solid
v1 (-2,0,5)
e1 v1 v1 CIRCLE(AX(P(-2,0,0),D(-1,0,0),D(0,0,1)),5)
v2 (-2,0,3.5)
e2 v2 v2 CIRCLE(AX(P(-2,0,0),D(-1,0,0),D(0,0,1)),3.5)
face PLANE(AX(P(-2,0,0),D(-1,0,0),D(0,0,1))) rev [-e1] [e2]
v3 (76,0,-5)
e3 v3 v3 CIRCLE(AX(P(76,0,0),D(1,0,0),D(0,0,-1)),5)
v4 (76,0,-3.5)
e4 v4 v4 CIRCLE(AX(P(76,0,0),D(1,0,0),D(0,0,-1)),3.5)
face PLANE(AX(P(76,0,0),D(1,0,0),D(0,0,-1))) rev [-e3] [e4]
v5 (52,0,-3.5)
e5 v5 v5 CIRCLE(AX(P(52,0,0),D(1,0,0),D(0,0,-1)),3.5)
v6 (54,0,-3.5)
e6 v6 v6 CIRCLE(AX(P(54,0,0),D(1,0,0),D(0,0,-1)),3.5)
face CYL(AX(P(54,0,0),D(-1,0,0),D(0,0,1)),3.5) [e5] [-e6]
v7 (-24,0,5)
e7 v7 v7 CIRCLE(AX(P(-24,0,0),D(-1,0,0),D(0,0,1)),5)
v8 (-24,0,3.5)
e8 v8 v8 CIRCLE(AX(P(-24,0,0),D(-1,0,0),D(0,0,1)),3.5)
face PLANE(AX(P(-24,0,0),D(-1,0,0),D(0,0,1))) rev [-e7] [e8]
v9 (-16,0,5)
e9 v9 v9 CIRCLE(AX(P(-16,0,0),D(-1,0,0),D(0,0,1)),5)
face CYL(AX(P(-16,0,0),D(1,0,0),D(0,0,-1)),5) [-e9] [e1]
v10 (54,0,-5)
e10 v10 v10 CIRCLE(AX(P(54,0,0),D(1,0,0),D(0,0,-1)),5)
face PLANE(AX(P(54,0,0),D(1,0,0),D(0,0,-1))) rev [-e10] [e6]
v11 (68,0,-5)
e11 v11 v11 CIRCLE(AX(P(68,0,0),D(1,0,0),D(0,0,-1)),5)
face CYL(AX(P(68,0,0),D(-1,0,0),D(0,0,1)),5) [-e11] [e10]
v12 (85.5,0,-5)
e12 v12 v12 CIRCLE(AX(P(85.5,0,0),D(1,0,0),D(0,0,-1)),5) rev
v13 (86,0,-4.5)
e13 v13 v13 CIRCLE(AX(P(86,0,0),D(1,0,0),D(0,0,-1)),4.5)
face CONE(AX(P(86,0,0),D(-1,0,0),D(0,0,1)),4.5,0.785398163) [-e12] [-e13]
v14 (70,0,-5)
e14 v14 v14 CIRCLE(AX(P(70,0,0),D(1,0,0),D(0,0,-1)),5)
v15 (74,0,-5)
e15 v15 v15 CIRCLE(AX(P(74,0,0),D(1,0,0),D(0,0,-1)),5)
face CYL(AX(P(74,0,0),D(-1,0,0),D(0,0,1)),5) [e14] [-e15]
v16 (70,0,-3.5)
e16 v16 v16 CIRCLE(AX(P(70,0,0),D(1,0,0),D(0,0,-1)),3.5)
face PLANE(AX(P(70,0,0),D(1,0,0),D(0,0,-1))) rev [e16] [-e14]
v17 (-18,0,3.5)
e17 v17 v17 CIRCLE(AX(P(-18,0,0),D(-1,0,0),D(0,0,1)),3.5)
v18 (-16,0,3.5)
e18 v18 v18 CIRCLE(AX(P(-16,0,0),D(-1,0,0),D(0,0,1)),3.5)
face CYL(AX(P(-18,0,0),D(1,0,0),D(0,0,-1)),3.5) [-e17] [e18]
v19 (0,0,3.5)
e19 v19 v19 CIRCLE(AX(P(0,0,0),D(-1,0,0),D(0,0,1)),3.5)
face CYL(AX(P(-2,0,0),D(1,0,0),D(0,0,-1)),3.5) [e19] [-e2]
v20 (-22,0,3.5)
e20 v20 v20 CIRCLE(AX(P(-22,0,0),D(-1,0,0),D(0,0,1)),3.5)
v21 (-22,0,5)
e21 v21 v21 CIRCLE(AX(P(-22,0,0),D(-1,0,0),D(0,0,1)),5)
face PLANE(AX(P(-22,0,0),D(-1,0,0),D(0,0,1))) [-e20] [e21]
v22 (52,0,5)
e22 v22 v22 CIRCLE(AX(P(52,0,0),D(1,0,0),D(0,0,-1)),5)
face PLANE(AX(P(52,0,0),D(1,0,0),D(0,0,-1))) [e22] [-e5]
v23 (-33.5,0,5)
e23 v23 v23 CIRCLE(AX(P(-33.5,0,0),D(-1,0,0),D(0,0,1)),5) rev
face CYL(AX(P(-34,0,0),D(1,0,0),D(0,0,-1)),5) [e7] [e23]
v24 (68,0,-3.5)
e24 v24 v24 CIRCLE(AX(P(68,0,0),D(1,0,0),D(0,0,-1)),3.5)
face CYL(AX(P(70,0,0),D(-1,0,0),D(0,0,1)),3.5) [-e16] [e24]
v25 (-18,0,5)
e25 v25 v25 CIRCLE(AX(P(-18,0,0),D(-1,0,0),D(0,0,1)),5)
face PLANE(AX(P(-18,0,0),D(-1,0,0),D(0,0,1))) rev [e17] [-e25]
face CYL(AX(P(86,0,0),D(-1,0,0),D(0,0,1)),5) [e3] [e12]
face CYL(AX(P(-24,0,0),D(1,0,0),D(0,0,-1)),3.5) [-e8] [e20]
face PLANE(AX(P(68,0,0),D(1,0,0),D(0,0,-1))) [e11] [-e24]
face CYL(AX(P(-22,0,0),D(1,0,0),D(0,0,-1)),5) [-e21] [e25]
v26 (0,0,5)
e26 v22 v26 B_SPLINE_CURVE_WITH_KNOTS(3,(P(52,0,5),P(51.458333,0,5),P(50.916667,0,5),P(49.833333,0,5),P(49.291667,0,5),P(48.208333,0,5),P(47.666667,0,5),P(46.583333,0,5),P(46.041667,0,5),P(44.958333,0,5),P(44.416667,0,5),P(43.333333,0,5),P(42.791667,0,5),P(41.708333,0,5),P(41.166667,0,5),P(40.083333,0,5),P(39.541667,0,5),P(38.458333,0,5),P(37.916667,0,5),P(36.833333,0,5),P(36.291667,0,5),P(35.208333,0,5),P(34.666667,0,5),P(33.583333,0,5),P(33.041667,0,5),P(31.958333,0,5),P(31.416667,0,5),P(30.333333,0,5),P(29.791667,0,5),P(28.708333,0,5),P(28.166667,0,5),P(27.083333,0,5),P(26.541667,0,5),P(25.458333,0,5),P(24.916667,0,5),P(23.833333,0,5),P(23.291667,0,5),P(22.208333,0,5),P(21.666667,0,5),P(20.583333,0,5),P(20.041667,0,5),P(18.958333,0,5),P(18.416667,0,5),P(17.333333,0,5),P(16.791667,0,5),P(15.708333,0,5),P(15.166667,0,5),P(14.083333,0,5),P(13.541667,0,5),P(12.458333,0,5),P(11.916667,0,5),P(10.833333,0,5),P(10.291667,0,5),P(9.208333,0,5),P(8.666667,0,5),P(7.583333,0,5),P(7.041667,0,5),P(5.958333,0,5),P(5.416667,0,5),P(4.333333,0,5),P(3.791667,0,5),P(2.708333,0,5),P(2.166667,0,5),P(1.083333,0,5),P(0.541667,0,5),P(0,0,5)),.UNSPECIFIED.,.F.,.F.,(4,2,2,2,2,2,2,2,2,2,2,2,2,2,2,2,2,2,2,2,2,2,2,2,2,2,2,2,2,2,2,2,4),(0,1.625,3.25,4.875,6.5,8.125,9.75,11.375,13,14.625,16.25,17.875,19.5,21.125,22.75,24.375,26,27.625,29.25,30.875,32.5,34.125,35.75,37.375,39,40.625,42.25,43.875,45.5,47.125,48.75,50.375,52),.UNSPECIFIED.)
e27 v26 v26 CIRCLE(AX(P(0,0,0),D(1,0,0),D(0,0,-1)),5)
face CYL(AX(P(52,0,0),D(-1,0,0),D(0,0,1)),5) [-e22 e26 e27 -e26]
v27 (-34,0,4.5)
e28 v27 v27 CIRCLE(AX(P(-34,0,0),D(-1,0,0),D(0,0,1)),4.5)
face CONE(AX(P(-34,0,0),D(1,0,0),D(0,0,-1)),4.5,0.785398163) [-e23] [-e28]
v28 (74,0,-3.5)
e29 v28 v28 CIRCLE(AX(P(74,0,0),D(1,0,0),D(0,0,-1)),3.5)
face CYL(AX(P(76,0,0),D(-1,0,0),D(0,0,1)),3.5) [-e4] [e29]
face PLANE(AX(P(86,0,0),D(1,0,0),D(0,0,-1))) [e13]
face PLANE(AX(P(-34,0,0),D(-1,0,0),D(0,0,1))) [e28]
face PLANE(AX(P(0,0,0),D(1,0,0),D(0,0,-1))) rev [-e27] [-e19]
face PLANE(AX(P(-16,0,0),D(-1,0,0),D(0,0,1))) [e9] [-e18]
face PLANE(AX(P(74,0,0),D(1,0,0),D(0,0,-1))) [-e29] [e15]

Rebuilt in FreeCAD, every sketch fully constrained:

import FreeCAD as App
import Part
import Sketcher

V = App.Vector


def edges_at(feature, points):
    """Names of the edges that pass closest to the given points."""
    edges = feature.Shape.Edges
    near = lambda p: min(range(len(edges)), key=lambda i: edges[i].distToShape(Part.Vertex(*p))[0])
    return sorted({f"Edge{near(p) + 1}" for p in points})

doc = App.newDocument("Part")
params = doc.addObject("Spreadsheet::Sheet", "Params")
for row, (alias, value) in enumerate([
    ("sketch1_diameter", "10 mm"),
    ("pad1_length", "52 mm"),
    ("sketch2_diameter", "7 mm"),
    ("pad2_length", "2 mm"),
    ("sketch3_diameter", "10 mm"),
    ("pad3_length", "14 mm"),
    ("sketch4_diameter", "7 mm"),
    ("pad4_length", "2 mm"),
    ("sketch5_diameter", "10 mm"),
    ("pad5_length", "4 mm"),
    ("sketch6_diameter", "7 mm"),
    ("pad6_length", "2 mm"),
    ("sketch7_diameter", "10 mm"),
    ("pad7_length", "10 mm"),
    ("sketch8_diameter", "7 mm"),
    ("pad8_length", "2 mm"),
    ("sketch9_diameter", "10 mm"),
    ("pad9_length", "14 mm"),
    ("sketch10_diameter", "7 mm"),
    ("pad10_length", "2 mm"),
    ("sketch11_diameter", "10 mm"),
    ("pad11_length", "4 mm"),
    ("sketch12_diameter", "7 mm"),
    ("pad12_length", "2 mm"),
    ("sketch13_diameter", "10 mm"),
    ("pad13_length", "10 mm"),
    ("chamfer_size", "0.5 mm"),
], start=1):
    params.set(f"A{row}", alias)
    params.set(f"B{row}", "=" + value)
    params.setAlias(f"B{row}", alias)

body = doc.addObject("PartDesign::Body", "Body")

sketch1 = body.newObject("Sketcher::SketchObject", "Sketch")
sketch1.AttachmentSupport = (doc.getObject("YZ_Plane"), [""])
sketch1.MapMode = "FlatFace"
sketch1.addGeometry(Part.Circle(V(0, 0, 0), V(0, 0, 1), 5), False)
sketch1.addConstraint(Sketcher.Constraint("Coincident", 0, 3, -1, 1))
sketch1.addConstraint(Sketcher.Constraint("Diameter", 0, 10.0))
sketch1.setExpression("Constraints[1]", "Params.sketch1_diameter")
pad1 = body.newObject("PartDesign::Pad", "Pad")
pad1.Profile = sketch1
pad1.setExpression("Length", "Params.pad1_length")

sketch2 = body.newObject("Sketcher::SketchObject", "Sketch001")
sketch2.AttachmentSupport = (doc.getObject("YZ_Plane"), [""])
sketch2.MapMode = "FlatFace"
sketch2.AttachmentOffset = App.Placement(V(0, 0, 52), App.Rotation())
sketch2.addGeometry(Part.Circle(V(0, 0, 0), V(0, 0, 1), 3.5), False)
sketch2.addConstraint(Sketcher.Constraint("Coincident", 0, 3, -1, 1))
sketch2.addConstraint(Sketcher.Constraint("Diameter", 0, 7.0))
sketch2.setExpression("Constraints[1]", "Params.sketch2_diameter")
pad2 = body.newObject("PartDesign::Pad", "Pad001")
pad2.Profile = sketch2
pad2.setExpression("Length", "Params.pad2_length")

sketch3 = body.newObject("Sketcher::SketchObject", "Sketch002")
sketch3.AttachmentSupport = (doc.getObject("YZ_Plane"), [""])
sketch3.MapMode = "FlatFace"
sketch3.AttachmentOffset = App.Placement(V(0, 0, 54), App.Rotation())
sketch3.addGeometry(Part.Circle(V(0, 0, 0), V(0, 0, 1), 5), False)
sketch3.addConstraint(Sketcher.Constraint("Coincident", 0, 3, -1, 1))
sketch3.addConstraint(Sketcher.Constraint("Diameter", 0, 10.0))
sketch3.setExpression("Constraints[1]", "Params.sketch3_diameter")
pad3 = body.newObject("PartDesign::Pad", "Pad002")
pad3.Profile = sketch3
pad3.setExpression("Length", "Params.pad3_length")

sketch4 = body.newObject("Sketcher::SketchObject", "Sketch003")
sketch4.AttachmentSupport = (doc.getObject("YZ_Plane"), [""])
sketch4.MapMode = "FlatFace"
sketch4.AttachmentOffset = App.Placement(V(0, 0, 68), App.Rotation())
sketch4.addGeometry(Part.Circle(V(0, 0, 0), V(0, 0, 1), 3.5), False)
sketch4.addConstraint(Sketcher.Constraint("Coincident", 0, 3, -1, 1))
sketch4.addConstraint(Sketcher.Constraint("Diameter", 0, 7.0))
sketch4.setExpression("Constraints[1]", "Params.sketch4_diameter")
pad4 = body.newObject("PartDesign::Pad", "Pad003")
pad4.Profile = sketch4
pad4.setExpression("Length", "Params.pad4_length")

sketch5 = body.newObject("Sketcher::SketchObject", "Sketch004")
sketch5.AttachmentSupport = (doc.getObject("YZ_Plane"), [""])
sketch5.MapMode = "FlatFace"
sketch5.AttachmentOffset = App.Placement(V(0, 0, 70), App.Rotation())
sketch5.addGeometry(Part.Circle(V(0, 0, 0), V(0, 0, 1), 5), False)
sketch5.addConstraint(Sketcher.Constraint("Coincident", 0, 3, -1, 1))
sketch5.addConstraint(Sketcher.Constraint("Diameter", 0, 10.0))
sketch5.setExpression("Constraints[1]", "Params.sketch5_diameter")
pad5 = body.newObject("PartDesign::Pad", "Pad004")
pad5.Profile = sketch5
pad5.setExpression("Length", "Params.pad5_length")

sketch6 = body.newObject("Sketcher::SketchObject", "Sketch005")
sketch6.AttachmentSupport = (doc.getObject("YZ_Plane"), [""])
sketch6.MapMode = "FlatFace"
sketch6.AttachmentOffset = App.Placement(V(0, 0, 74), App.Rotation())
sketch6.addGeometry(Part.Circle(V(0, 0, 0), V(0, 0, 1), 3.5), False)
sketch6.addConstraint(Sketcher.Constraint("Coincident", 0, 3, -1, 1))
sketch6.addConstraint(Sketcher.Constraint("Diameter", 0, 7.0))
sketch6.setExpression("Constraints[1]", "Params.sketch6_diameter")
pad6 = body.newObject("PartDesign::Pad", "Pad005")
pad6.Profile = sketch6
pad6.setExpression("Length", "Params.pad6_length")

sketch7 = body.newObject("Sketcher::SketchObject", "Sketch006")
sketch7.AttachmentSupport = (doc.getObject("YZ_Plane"), [""])
sketch7.MapMode = "FlatFace"
sketch7.AttachmentOffset = App.Placement(V(0, 0, 76), App.Rotation())
sketch7.addGeometry(Part.Circle(V(0, 0, 0), V(0, 0, 1), 5), False)
sketch7.addConstraint(Sketcher.Constraint("Coincident", 0, 3, -1, 1))
sketch7.addConstraint(Sketcher.Constraint("Diameter", 0, 10.0))
sketch7.setExpression("Constraints[1]", "Params.sketch7_diameter")
pad7 = body.newObject("PartDesign::Pad", "Pad006")
pad7.Profile = sketch7
pad7.setExpression("Length", "Params.pad7_length")

sketch8 = body.newObject("Sketcher::SketchObject", "Sketch007")
sketch8.AttachmentSupport = (doc.getObject("YZ_Plane"), [""])
sketch8.MapMode = "FlatFace"
sketch8.AttachmentOffset = App.Placement(V(0, 0, -2), App.Rotation())
sketch8.addGeometry(Part.Circle(V(0, 0, 0), V(0, 0, 1), 3.5), False)
sketch8.addConstraint(Sketcher.Constraint("Coincident", 0, 3, -1, 1))
sketch8.addConstraint(Sketcher.Constraint("Diameter", 0, 7.0))
sketch8.setExpression("Constraints[1]", "Params.sketch8_diameter")
pad8 = body.newObject("PartDesign::Pad", "Pad007")
pad8.Profile = sketch8
pad8.setExpression("Length", "Params.pad8_length")

sketch9 = body.newObject("Sketcher::SketchObject", "Sketch008")
sketch9.AttachmentSupport = (doc.getObject("YZ_Plane"), [""])
sketch9.MapMode = "FlatFace"
sketch9.AttachmentOffset = App.Placement(V(0, 0, -16), App.Rotation())
sketch9.addGeometry(Part.Circle(V(0, 0, 0), V(0, 0, 1), 5), False)
sketch9.addConstraint(Sketcher.Constraint("Coincident", 0, 3, -1, 1))
sketch9.addConstraint(Sketcher.Constraint("Diameter", 0, 10.0))
sketch9.setExpression("Constraints[1]", "Params.sketch9_diameter")
pad9 = body.newObject("PartDesign::Pad", "Pad008")
pad9.Profile = sketch9
pad9.setExpression("Length", "Params.pad9_length")

sketch10 = body.newObject("Sketcher::SketchObject", "Sketch009")
sketch10.AttachmentSupport = (doc.getObject("YZ_Plane"), [""])
sketch10.MapMode = "FlatFace"
sketch10.AttachmentOffset = App.Placement(V(0, 0, -18), App.Rotation())
sketch10.addGeometry(Part.Circle(V(0, 0, 0), V(0, 0, 1), 3.5), False)
sketch10.addConstraint(Sketcher.Constraint("Coincident", 0, 3, -1, 1))
sketch10.addConstraint(Sketcher.Constraint("Diameter", 0, 7.0))
sketch10.setExpression("Constraints[1]", "Params.sketch10_diameter")
pad10 = body.newObject("PartDesign::Pad", "Pad009")
pad10.Profile = sketch10
pad10.setExpression("Length", "Params.pad10_length")

sketch11 = body.newObject("Sketcher::SketchObject", "Sketch010")
sketch11.AttachmentSupport = (doc.getObject("YZ_Plane"), [""])
sketch11.MapMode = "FlatFace"
sketch11.AttachmentOffset = App.Placement(V(0, 0, -22), App.Rotation())
sketch11.addGeometry(Part.Circle(V(0, 0, 0), V(0, 0, 1), 5), False)
sketch11.addConstraint(Sketcher.Constraint("Coincident", 0, 3, -1, 1))
sketch11.addConstraint(Sketcher.Constraint("Diameter", 0, 10.0))
sketch11.setExpression("Constraints[1]", "Params.sketch11_diameter")
pad11 = body.newObject("PartDesign::Pad", "Pad010")
pad11.Profile = sketch11
pad11.setExpression("Length", "Params.pad11_length")

sketch12 = body.newObject("Sketcher::SketchObject", "Sketch011")
sketch12.AttachmentSupport = (doc.getObject("YZ_Plane"), [""])
sketch12.MapMode = "FlatFace"
sketch12.AttachmentOffset = App.Placement(V(0, 0, -24), App.Rotation())
sketch12.addGeometry(Part.Circle(V(0, 0, 0), V(0, 0, 1), 3.5), False)
sketch12.addConstraint(Sketcher.Constraint("Coincident", 0, 3, -1, 1))
sketch12.addConstraint(Sketcher.Constraint("Diameter", 0, 7.0))
sketch12.setExpression("Constraints[1]", "Params.sketch12_diameter")
pad12 = body.newObject("PartDesign::Pad", "Pad011")
pad12.Profile = sketch12
pad12.setExpression("Length", "Params.pad12_length")

sketch13 = body.newObject("Sketcher::SketchObject", "Sketch012")
sketch13.AttachmentSupport = (doc.getObject("YZ_Plane"), [""])
sketch13.MapMode = "FlatFace"
sketch13.AttachmentOffset = App.Placement(V(0, 0, -34), App.Rotation())
sketch13.addGeometry(Part.Circle(V(0, 0, 0), V(0, 0, 1), 5), False)
sketch13.addConstraint(Sketcher.Constraint("Coincident", 0, 3, -1, 1))
sketch13.addConstraint(Sketcher.Constraint("Diameter", 0, 10.0))
sketch13.setExpression("Constraints[1]", "Params.sketch13_diameter")
pad13 = body.newObject("PartDesign::Pad", "Pad012")
pad13.Profile = sketch13
pad13.setExpression("Length", "Params.pad13_length")
doc.recompute()

chamfer = body.newObject("PartDesign::Chamfer", "Chamfer")
chamfer.Base = (pad13, edges_at(pad13, [(86, 0, -5), (-34, 0, -5)]))
chamfer.setExpression("Size", "Params.chamfer_size")

doc.recompute()
